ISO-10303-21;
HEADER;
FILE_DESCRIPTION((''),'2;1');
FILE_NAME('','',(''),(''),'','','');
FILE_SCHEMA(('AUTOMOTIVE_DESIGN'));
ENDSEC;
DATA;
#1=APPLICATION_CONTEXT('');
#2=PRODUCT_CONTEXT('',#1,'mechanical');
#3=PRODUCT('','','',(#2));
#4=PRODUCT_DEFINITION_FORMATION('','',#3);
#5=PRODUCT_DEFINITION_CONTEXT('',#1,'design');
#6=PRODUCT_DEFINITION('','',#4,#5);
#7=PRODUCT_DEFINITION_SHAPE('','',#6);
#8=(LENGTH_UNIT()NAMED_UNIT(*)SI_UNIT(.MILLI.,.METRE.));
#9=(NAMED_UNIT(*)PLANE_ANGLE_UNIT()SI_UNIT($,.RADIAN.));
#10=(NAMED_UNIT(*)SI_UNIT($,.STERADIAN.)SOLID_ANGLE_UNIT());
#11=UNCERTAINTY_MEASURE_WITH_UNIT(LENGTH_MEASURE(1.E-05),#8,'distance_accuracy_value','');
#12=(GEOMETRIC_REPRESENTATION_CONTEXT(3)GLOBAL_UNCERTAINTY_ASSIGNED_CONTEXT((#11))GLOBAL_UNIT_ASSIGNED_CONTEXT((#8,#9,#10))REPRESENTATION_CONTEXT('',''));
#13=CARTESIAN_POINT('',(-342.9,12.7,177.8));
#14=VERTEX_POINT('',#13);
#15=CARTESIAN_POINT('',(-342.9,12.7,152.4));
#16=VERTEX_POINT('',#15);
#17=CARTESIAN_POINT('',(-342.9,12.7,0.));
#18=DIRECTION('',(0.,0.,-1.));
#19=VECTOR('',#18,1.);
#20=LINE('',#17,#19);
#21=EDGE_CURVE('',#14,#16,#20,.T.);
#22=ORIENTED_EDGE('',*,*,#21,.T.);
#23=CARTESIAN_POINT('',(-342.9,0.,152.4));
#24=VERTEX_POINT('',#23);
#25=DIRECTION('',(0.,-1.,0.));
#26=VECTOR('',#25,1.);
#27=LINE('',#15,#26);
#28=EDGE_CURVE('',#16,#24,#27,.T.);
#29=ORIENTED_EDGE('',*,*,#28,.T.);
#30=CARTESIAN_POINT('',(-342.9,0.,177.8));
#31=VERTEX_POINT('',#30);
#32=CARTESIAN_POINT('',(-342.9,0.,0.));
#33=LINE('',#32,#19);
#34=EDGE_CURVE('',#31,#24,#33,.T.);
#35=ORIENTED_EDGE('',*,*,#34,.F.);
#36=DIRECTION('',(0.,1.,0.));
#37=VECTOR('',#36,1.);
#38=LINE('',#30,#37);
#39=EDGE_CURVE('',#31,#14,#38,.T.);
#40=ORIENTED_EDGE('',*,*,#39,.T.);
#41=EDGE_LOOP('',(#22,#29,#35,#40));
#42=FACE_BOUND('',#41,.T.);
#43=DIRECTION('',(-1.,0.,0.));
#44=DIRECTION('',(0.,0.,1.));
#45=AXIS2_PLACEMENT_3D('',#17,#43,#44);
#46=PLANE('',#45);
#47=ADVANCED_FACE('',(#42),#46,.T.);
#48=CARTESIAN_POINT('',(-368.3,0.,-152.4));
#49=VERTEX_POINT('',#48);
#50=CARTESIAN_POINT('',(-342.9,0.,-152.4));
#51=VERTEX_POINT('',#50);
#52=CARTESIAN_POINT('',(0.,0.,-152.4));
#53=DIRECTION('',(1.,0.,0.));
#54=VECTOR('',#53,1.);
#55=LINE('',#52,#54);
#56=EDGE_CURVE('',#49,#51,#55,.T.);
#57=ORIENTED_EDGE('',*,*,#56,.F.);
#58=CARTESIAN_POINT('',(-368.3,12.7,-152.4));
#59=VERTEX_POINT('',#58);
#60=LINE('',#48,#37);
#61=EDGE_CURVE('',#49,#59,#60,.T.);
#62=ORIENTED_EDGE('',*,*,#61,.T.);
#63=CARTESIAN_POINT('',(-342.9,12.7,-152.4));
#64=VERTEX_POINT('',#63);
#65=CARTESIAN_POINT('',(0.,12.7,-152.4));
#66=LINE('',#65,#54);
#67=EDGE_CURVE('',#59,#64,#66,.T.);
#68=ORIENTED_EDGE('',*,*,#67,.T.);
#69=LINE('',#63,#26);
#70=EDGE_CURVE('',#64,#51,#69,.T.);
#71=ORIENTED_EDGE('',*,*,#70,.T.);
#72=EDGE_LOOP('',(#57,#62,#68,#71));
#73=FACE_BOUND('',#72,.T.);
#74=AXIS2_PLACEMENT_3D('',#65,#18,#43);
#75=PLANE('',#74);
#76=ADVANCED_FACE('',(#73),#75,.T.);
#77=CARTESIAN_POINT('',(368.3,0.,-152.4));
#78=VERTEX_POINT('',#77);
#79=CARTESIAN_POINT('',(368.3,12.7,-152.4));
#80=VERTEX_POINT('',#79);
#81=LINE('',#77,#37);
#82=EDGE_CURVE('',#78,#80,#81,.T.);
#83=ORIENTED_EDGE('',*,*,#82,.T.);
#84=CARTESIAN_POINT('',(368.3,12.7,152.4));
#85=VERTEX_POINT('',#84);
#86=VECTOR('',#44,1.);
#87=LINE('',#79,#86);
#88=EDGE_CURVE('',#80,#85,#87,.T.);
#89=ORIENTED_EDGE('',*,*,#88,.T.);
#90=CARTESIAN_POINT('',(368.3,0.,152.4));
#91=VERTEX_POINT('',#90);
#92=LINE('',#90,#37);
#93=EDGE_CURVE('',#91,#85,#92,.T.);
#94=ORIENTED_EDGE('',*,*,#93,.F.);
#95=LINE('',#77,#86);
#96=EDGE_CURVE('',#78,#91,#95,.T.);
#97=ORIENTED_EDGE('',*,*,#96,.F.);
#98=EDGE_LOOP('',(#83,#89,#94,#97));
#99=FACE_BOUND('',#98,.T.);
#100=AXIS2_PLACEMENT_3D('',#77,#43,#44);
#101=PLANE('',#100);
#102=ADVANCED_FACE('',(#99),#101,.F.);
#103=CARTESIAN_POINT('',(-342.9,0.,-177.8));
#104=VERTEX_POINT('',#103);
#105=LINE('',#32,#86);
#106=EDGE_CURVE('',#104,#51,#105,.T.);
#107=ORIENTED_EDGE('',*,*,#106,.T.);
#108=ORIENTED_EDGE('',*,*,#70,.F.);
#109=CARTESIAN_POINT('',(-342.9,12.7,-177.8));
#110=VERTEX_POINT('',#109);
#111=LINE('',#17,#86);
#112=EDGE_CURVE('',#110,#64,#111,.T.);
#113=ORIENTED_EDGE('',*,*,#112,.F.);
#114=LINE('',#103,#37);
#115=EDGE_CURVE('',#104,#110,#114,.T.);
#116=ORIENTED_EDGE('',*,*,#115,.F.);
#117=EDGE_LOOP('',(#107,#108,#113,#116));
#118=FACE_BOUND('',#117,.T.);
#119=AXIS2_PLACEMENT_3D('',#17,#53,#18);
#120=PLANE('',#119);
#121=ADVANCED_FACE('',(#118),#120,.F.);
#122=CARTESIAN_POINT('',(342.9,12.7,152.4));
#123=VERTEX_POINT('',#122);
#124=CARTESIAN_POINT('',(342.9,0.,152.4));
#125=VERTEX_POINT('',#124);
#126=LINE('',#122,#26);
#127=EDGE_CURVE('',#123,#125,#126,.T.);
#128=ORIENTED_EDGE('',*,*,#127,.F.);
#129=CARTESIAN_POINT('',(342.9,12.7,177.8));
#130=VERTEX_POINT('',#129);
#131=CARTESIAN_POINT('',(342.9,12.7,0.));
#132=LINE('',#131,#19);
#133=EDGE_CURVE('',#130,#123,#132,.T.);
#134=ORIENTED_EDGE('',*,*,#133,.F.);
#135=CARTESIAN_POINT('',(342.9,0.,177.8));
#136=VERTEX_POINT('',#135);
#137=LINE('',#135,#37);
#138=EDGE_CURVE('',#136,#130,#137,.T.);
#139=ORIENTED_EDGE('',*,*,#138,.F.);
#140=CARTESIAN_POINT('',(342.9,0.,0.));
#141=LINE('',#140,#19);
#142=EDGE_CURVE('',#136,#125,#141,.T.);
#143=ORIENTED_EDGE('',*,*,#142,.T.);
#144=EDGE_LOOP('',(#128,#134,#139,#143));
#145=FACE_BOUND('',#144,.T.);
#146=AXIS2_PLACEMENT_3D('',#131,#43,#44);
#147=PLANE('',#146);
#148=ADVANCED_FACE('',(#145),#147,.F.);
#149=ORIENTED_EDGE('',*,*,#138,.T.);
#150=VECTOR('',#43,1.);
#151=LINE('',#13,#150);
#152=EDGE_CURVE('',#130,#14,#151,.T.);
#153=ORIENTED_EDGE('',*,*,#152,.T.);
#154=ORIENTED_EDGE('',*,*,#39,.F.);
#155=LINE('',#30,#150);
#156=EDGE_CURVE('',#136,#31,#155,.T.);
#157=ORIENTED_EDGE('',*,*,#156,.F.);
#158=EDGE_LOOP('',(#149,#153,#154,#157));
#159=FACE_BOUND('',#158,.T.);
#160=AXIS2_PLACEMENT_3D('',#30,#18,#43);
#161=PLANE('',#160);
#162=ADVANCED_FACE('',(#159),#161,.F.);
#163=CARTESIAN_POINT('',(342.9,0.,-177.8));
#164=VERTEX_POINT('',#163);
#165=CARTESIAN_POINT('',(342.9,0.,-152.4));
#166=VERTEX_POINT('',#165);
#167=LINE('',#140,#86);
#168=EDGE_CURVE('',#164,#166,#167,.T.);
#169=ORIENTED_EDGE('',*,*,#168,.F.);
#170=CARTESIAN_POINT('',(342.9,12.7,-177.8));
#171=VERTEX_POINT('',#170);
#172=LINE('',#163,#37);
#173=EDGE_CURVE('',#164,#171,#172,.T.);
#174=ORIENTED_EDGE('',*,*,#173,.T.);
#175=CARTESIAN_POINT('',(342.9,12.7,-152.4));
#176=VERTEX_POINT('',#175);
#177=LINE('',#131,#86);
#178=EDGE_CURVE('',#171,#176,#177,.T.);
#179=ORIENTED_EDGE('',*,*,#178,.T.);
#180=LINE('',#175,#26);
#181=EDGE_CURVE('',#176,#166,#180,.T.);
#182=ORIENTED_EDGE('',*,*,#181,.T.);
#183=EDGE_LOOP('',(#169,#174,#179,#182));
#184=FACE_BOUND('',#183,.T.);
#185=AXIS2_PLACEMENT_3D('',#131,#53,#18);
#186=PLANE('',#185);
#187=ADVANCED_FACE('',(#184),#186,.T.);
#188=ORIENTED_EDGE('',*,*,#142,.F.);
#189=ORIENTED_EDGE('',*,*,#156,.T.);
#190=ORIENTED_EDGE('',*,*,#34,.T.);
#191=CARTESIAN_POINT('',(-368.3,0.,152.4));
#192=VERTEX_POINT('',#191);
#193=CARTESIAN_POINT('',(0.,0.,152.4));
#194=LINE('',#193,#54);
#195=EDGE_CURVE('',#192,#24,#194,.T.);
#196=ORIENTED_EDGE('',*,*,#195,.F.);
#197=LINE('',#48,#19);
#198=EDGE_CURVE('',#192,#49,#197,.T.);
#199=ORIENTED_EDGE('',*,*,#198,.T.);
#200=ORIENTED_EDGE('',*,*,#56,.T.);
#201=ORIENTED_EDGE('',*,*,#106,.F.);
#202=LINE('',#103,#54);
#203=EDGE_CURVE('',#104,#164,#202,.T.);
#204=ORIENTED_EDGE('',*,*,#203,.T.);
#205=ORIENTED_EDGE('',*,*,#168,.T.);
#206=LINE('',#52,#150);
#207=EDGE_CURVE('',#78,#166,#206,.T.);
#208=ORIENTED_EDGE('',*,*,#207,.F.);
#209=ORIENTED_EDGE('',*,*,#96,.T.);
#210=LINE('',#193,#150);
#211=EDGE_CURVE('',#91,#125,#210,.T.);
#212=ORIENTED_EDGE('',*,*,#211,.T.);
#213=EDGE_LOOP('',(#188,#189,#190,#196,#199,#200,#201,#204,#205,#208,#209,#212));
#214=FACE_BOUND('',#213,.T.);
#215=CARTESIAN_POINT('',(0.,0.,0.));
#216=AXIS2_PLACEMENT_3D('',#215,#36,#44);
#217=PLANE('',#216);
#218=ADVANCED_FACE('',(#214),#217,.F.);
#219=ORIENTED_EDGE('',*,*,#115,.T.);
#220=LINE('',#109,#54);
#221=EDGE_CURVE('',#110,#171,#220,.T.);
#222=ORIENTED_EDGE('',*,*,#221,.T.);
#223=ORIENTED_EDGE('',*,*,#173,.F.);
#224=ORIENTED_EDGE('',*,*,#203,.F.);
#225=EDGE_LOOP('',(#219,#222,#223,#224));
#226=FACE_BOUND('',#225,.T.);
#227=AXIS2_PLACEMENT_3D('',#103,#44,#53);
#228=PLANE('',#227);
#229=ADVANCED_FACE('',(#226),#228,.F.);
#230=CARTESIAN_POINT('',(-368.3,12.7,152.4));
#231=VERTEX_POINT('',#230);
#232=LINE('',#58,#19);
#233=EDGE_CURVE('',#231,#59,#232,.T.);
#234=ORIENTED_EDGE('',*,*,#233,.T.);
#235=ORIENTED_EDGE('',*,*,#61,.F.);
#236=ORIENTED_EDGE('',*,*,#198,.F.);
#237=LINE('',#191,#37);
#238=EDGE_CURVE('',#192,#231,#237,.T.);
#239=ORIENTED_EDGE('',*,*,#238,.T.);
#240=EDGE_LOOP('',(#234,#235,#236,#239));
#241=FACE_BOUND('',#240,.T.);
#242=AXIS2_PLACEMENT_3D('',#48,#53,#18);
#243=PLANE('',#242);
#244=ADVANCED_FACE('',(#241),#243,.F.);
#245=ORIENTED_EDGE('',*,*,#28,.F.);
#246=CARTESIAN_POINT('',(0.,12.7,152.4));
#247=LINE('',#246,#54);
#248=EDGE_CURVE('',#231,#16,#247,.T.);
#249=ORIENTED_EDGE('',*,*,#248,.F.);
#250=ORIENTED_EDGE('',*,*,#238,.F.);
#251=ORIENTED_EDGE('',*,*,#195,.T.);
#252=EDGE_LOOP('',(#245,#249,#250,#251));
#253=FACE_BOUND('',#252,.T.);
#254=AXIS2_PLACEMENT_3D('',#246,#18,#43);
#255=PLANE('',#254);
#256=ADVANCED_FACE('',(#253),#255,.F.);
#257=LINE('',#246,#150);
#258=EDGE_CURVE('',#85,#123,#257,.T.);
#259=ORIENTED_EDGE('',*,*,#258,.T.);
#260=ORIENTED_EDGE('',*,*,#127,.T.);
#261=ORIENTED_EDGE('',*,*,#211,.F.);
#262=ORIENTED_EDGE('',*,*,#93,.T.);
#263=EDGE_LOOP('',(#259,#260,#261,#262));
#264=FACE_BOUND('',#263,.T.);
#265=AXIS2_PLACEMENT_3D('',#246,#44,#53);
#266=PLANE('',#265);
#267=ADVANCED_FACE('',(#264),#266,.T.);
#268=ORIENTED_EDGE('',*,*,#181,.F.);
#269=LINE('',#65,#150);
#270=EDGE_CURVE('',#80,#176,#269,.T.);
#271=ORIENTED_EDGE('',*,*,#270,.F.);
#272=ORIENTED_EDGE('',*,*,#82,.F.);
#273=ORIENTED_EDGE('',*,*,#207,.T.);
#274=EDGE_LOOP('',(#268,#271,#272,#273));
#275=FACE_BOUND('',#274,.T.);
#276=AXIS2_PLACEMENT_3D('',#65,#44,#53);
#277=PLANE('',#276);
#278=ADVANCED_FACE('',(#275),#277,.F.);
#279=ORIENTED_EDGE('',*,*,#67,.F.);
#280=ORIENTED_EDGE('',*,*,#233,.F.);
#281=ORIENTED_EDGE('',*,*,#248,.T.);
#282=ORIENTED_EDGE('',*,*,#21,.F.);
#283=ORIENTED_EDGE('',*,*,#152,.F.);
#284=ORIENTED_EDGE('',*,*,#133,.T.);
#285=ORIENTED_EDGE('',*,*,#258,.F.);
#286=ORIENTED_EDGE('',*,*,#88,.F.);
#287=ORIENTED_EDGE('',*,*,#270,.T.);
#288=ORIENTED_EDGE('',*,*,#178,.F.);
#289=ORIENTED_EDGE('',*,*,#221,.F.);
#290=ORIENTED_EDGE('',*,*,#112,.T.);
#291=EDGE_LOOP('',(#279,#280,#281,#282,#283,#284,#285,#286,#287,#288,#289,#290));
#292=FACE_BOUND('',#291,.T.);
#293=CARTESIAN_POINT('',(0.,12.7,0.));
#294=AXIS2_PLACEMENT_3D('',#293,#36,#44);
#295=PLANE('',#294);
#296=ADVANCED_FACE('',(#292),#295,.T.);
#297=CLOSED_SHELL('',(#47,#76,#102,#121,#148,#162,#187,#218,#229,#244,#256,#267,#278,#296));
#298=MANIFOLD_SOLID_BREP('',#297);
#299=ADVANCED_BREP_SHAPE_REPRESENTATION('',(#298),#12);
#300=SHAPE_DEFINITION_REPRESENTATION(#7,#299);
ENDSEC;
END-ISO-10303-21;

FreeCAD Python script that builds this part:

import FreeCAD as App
import Part
import Sketcher
from FreeCAD import Vector
Q = App.Units.Quantity


def add_polygon(sketch, points):
    """Adds a closed chain of lines whose ends are joined by coincident constraints."""
    first, n = sketch.GeometryCount, len(points)
    for a, b in zip(points, points[1:] + points[:1]):
        sketch.addGeometry(Part.LineSegment(App.Vector(*a, 0), App.Vector(*b, 0)), False)
    for i in range(n):
        sketch.addConstraint(Sketcher.Constraint("Coincident", first + i, 2, first + (i + 1) % n, 1))

doc = App.newDocument("Part")
body = doc.addObject("PartDesign::Body", "Body")

sketch1 = body.newObject("Sketcher::SketchObject", "Sketch")
sketch1.AttachmentSupport = (doc.getObject("XZ_Plane"), [""])
sketch1.MapMode = "FlatFace"
add_polygon(sketch1, [(342.9, -190.5), (-342.9, -190.5), (-342.9, -152.4), (-381, -152.4), (-381, 152.4), (-342.9, 152.4), (-342.9, 190.5), (342.9, 190.5), (342.9, 152.4), (381, 152.4), (381, -152.4), (342.9, -152.4)])
sketch1.addConstraint(Sketcher.Constraint("Horizontal", 0))
sketch1.addConstraint(Sketcher.Constraint("Vertical", 1))
sketch1.addConstraint(Sketcher.Constraint("Horizontal", 2))
sketch1.addConstraint(Sketcher.Constraint("Vertical", 3))
sketch1.addConstraint(Sketcher.Constraint("Horizontal", 4))
sketch1.addConstraint(Sketcher.Constraint("Vertical", 5))
sketch1.addConstraint(Sketcher.Constraint("Horizontal", 6))
sketch1.addConstraint(Sketcher.Constraint("Vertical", 7))
sketch1.addConstraint(Sketcher.Constraint("Horizontal", 8))
sketch1.addConstraint(Sketcher.Constraint("Vertical", 9))
sketch1.addConstraint(Sketcher.Constraint("Horizontal", 10))
sketch1.addConstraint(Sketcher.Constraint("Vertical", 11))
sketch1.addConstraint(Sketcher.Constraint("Symmetric", 0, 2, 6, 2, -1, 1))
sketch1.addConstraint(Sketcher.Constraint("Symmetric", 2, 2, 8, 2, -1, 1))
sketch1.addConstraint(Sketcher.Constraint("Symmetric", 4, 2, 10, 2, -1, 1))
sketch1.addConstraint(Sketcher.Constraint("Symmetric", 4, 2, 7, 2, -2))
sketch1.addConstraint(Sketcher.Constraint("Equal", 10, 1))
sketch1.addConstraint(Sketcher.Constraint("DistanceX", 0, 2, 0, 1, Q("27 in")))
sketch1.addConstraint(Sketcher.Constraint("DistanceY", 3, 1, 3, 2, Q("12 in")))
sketch1.addConstraint(Sketcher.Constraint("DistanceX", 2, 2, 2, 1, Q("1.5 in")))
pad1 = body.newObject("PartDesign::Pad", "Pad")
pad1.Profile = sketch1
pad1.Length = Q("0.5 in")
pad1.Reversed = True

sketch2 = body.newObject("Sketcher::SketchObject", "Sketch001")
sketch2.AttachmentSupport = (doc.getObject("XZ_Plane"), [""])
sketch2.MapMode = "FlatFace"
sketch2.AttachmentOffset = App.Placement(Vector(0, 0, -0.5 * 25.4), App.Rotation())
add_polygon(sketch2, [(-381, -152.4), (-381, 152.4), (-368.3, 152.4), (-368.3, -152.4)])
add_polygon(sketch2, [(-342.9, -190.5), (-342.9, -177.8), (342.9, -177.8), (342.9, -190.5)])
add_polygon(sketch2, [(368.3, -152.4), (368.3, 152.4), (381, 152.4), (381, -152.4)])
add_polygon(sketch2, [(-342.9, 177.8), (-342.9, 190.5), (342.9, 190.5), (342.9, 177.8)])
sketch2.addConstraint(Sketcher.Constraint("Vertical", 0))
sketch2.addConstraint(Sketcher.Constraint("Horizontal", 1))
sketch2.addConstraint(Sketcher.Constraint("Vertical", 2))
sketch2.addConstraint(Sketcher.Constraint("Horizontal", 3))
sketch2.addConstraint(Sketcher.Constraint("Vertical", 4))
sketch2.addConstraint(Sketcher.Constraint("Horizontal", 5))
sketch2.addConstraint(Sketcher.Constraint("Vertical", 6))
sketch2.addConstraint(Sketcher.Constraint("Horizontal", 7))
sketch2.addConstraint(Sketcher.Constraint("Vertical", 8))
sketch2.addConstraint(Sketcher.Constraint("Horizontal", 9))
sketch2.addConstraint(Sketcher.Constraint("Vertical", 10))
sketch2.addConstraint(Sketcher.Constraint("Horizontal", 11))
sketch2.addConstraint(Sketcher.Constraint("Vertical", 12))
sketch2.addConstraint(Sketcher.Constraint("Horizontal", 13))
sketch2.addConstraint(Sketcher.Constraint("Vertical", 14))
sketch2.addConstraint(Sketcher.Constraint("Horizontal", 15))
sketch2.addConstraint(Sketcher.Constraint("Symmetric", 2, 2, 8, 2, -1, 1))
sketch2.addConstraint(Sketcher.Constraint("Symmetric", 0, 2, 10, 2, -1, 1))
sketch2.addConstraint(Sketcher.Constraint("Symmetric", 6, 2, 12, 2, -1, 1))
sketch2.addConstraint(Sketcher.Constraint("Symmetric", 4, 2, 14, 2, -1, 1))
sketch2.addConstraint(Sketcher.Constraint("Horizontal", 1, 2, 8, 2))
sketch2.addConstraint(Sketcher.Constraint("Vertical", 7, 2, 12, 2))
sketch2.addConstraint(Sketcher.Constraint("Equal", 11, 4))
sketch2.addConstraint(Sketcher.Constraint("DistanceX", 5, 1, 5, 2, Q("27 in")))
sketch2.addConstraint(Sketcher.Constraint("DistanceY", 0, 1, 0, 2, Q("12 in")))
sketch2.addConstraint(Sketcher.Constraint("DistanceX", 1, 1, 1, 2, Q("0.5 in")))
sketch2.addConstraint(Sketcher.Constraint("DistanceX", 0, 2, -1, 1, Q("15 in")))
sketch2.addConstraint(Sketcher.Constraint("DistanceY", 4, 2, -1, 1, Q("7 in")))
pocket1 = body.newObject("PartDesign::Pocket", "Pocket")
pocket1.Profile = sketch2
pocket1.Length = Q("0.5 in")
pocket1.Reversed = True

doc.recompute()
